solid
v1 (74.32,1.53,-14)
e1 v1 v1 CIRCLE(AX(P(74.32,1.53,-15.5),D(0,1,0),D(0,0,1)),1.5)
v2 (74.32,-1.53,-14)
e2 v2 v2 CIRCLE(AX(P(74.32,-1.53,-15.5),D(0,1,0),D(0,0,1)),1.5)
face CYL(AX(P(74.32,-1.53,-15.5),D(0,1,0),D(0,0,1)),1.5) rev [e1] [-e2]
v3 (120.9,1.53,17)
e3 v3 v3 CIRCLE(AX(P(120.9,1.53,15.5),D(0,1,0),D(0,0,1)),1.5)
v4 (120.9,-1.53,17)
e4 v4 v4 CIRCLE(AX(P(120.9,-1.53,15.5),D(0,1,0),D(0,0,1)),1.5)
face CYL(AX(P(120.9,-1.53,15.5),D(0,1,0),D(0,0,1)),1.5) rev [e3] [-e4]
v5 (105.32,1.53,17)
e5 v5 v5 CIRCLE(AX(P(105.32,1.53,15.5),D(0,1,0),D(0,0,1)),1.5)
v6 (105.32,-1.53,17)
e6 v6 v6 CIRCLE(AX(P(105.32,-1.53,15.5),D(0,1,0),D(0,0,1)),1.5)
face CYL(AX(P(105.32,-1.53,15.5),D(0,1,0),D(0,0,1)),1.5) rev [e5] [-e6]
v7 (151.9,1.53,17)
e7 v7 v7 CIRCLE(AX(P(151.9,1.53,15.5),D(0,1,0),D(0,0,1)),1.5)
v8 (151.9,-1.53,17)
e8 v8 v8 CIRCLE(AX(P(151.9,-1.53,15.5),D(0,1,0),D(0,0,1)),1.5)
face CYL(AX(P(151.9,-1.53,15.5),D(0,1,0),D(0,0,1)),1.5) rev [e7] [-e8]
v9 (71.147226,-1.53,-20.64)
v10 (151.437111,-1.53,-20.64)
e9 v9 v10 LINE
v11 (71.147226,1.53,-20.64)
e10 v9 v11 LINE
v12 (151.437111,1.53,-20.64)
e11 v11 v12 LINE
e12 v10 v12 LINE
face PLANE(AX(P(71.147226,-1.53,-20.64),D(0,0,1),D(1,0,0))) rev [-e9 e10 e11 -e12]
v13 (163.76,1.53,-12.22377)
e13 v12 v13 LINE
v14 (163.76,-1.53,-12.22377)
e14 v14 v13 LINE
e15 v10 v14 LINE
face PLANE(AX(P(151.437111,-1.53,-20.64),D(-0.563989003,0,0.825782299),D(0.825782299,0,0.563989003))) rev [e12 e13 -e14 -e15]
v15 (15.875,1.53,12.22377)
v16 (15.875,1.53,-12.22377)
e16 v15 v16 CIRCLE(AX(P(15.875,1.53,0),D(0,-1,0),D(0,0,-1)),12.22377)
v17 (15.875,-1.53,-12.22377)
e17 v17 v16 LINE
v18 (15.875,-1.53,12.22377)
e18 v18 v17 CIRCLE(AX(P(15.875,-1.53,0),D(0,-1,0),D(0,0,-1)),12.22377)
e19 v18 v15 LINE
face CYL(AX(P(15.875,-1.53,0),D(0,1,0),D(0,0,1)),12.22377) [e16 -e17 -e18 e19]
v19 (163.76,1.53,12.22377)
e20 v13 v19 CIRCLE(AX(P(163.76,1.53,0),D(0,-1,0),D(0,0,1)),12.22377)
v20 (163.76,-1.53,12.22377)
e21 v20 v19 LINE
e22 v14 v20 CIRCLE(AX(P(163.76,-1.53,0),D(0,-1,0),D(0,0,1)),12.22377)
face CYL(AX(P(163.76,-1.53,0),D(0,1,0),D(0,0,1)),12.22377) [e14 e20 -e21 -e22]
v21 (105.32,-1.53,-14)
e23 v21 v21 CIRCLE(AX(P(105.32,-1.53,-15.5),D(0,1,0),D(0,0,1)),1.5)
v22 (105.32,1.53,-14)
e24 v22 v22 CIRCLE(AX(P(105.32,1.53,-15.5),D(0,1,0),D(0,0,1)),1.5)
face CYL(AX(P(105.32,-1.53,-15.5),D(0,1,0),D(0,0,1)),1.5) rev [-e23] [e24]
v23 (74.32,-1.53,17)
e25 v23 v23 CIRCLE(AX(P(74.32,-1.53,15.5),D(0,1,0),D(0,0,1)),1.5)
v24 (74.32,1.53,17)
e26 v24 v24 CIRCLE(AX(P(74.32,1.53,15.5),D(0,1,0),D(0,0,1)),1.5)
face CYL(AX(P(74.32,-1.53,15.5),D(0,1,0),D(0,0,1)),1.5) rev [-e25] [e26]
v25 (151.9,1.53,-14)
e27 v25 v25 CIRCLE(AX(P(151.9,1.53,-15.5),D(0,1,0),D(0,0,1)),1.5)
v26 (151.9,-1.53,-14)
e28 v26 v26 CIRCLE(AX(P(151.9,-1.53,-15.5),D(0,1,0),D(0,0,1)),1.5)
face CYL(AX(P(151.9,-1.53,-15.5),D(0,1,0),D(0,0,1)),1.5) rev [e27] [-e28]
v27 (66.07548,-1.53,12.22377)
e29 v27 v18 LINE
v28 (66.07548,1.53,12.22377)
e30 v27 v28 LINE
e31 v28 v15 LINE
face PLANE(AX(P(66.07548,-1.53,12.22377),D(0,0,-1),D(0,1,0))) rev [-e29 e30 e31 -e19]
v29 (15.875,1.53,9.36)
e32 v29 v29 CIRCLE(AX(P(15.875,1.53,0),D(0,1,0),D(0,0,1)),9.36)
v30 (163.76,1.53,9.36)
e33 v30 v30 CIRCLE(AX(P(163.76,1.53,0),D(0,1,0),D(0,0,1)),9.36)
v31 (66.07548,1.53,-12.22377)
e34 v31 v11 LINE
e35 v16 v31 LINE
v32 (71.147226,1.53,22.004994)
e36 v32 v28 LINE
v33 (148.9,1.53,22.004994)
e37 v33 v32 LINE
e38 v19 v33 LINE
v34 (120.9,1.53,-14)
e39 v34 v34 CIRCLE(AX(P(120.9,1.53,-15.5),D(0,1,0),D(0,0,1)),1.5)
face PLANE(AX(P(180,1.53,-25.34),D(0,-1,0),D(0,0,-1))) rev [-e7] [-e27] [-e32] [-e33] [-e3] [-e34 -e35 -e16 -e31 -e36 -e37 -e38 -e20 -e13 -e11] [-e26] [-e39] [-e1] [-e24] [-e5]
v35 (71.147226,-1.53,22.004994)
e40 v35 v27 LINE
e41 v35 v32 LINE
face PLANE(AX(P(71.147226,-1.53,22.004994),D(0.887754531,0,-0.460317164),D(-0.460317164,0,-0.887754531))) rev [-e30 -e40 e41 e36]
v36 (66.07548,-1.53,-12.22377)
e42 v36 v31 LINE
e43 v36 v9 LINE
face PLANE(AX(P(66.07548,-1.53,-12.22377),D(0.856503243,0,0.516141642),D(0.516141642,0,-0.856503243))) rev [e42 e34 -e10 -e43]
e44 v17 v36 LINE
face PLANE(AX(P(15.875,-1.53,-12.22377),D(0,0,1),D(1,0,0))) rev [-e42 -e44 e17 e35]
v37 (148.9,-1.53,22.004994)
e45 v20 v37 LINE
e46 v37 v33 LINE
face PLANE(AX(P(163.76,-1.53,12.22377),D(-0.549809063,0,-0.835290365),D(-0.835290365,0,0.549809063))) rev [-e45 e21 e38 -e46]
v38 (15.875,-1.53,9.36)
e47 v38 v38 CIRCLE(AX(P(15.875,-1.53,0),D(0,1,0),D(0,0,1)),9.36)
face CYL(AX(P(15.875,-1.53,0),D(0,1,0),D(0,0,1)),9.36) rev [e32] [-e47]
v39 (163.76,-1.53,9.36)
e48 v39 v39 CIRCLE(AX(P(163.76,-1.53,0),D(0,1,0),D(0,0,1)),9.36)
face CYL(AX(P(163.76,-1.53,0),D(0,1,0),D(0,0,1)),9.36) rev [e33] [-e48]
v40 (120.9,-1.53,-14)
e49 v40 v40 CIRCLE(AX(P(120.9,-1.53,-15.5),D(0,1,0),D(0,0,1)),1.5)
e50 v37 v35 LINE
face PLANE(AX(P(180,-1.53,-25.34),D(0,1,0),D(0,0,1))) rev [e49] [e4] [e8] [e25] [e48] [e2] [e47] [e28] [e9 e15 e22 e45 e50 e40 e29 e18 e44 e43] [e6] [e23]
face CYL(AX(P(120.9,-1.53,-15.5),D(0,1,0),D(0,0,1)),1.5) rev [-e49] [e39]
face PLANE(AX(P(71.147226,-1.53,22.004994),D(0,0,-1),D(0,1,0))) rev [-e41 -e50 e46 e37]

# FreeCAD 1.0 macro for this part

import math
import FreeCAD as App
import Part
import Sketcher


def add_polygon(sketch, points):
    """Adds a closed chain of lines whose ends are joined by coincident constraints."""
    first, n = sketch.GeometryCount, len(points)
    for a, b in zip(points, points[1:] + points[:1]):
        sketch.addGeometry(Part.LineSegment(App.Vector(*a, 0), App.Vector(*b, 0)), False)
    for i in range(n):
        sketch.addConstraint(Sketcher.Constraint("Coincident", first + i, 2, first + (i + 1) % n, 1))

doc = App.newDocument("Part")
body = doc.addObject("PartDesign::Body", "Body")

# Sketch on YZ plane
sketch1 = body.newObject("Sketcher::SketchObject", "Sketch")
sketch1.AttachmentSupport = (doc.getObject("YZ_Plane"), [""])
sketch1.MapMode = "FlatFace"
add_polygon(sketch1, [(1.5, 25.3), (-1.5, 25.3), (-1.5, -25.3), (1.5, -25.3)])  # lines 0-3
sketch1.addConstraint(Sketcher.Constraint("Horizontal", 0))
sketch1.addConstraint(Sketcher.Constraint("Vertical", 1))
sketch1.addConstraint(Sketcher.Constraint("Horizontal", 2))
sketch1.addConstraint(Sketcher.Constraint("Vertical", 3))
sketch1.addConstraint(Sketcher.Constraint("Symmetric", 0, 2, 2, 2, -1, 1))
sketch1.addConstraint(Sketcher.Constraint("DistanceX", 0, 2, 0, 1, 3.06))
sketch1.addConstraint(Sketcher.Constraint("DistanceY", 1, 2, 1, 1, 50.68))
pad1 = body.newObject("PartDesign::Pad", "Pad")
pad1.Profile = sketch1
pad1.Length = 180

# Sketch on XZ plane
sketch2 = body.newObject("Sketcher::SketchObject", "Sketch001")
sketch2.AttachmentSupport = (doc.getObject("XZ_Plane"), [""])
sketch2.MapMode = "FlatFace"
sketch2.AttachmentOffset = App.Placement(App.Vector(0, 0, -1.53), App.Rotation())
sketch2.addGeometry(Part.Circle(App.Vector(15.9, 0, 0), App.Vector(0, 0, 1), 9.4), False)
sketch2.addGeometry(Part.Circle(App.Vector(74.3, -15.5, 0), App.Vector(0, 0, 1), 1.5), False)
sketch2.addGeometry(Part.Circle(App.Vector(74.3, 15.5, 0), App.Vector(0, 0, 1), 1.5), False)
sketch2.addGeometry(Part.Circle(App.Vector(105.3, -15.5, 0), App.Vector(0, 0, 1), 1.5), False)
sketch2.addGeometry(Part.Circle(App.Vector(105.3, 15.5, 0), App.Vector(0, 0, 1), 1.5), False)
sketch2.addGeometry(Part.Circle(App.Vector(120.9, -15.5, 0), App.Vector(0, 0, 1), 1.5), False)
sketch2.addGeometry(Part.Circle(App.Vector(120.9, 15.5, 0), App.Vector(0, 0, 1), 1.5), False)
sketch2.addGeometry(Part.Circle(App.Vector(151.9, -15.5, 0), App.Vector(0, 0, 1), 1.5), False)
sketch2.addGeometry(Part.Circle(App.Vector(151.9, 15.5, 0), App.Vector(0, 0, 1), 1.5), False)
sketch2.addGeometry(Part.Circle(App.Vector(163.8, 0, 0), App.Vector(0, 0, 1), 9.4), False)
sketch2.addGeometry(Part.LineSegment(App.Vector(163.8, 12.2, 0), App.Vector(148.9, 22, 0)), False)
sketch2.addGeometry(Part.LineSegment(App.Vector(148.9, 22, 0), App.Vector(148.9, 25.3, 0)), False)
sketch2.addGeometry(Part.LineSegment(App.Vector(148.9, 25.3, 0), App.Vector(180, 25.3, 0)), False)
sketch2.addGeometry(Part.LineSegment(App.Vector(180, 25.3, 0), App.Vector(180, -25.3, 0)), False)
sketch2.addGeometry(Part.LineSegment(App.Vector(180, -25.3, 0), App.Vector(0, -25.3, 0)), False)
sketch2.addGeometry(Part.LineSegment(App.Vector(0, -25.3, 0), App.Vector(0, 25.3, 0)), False)
sketch2.addGeometry(Part.LineSegment(App.Vector(0, 25.3, 0), App.Vector(71.1, 25.3, 0)), False)
sketch2.addGeometry(Part.LineSegment(App.Vector(71.1, 25.3, 0), App.Vector(71.1, 22, 0)), False)
sketch2.addGeometry(Part.LineSegment(App.Vector(71.1, 22, 0), App.Vector(66.1, 12.2, 0)), False)
sketch2.addGeometry(Part.LineSegment(App.Vector(66.1, 12.2, 0), App.Vector(15.9, 12.2, 0)), False)
sketch2.addGeometry(Part.ArcOfCircle(Part.Circle(App.Vector(15.9, 0, 0), App.Vector(0, 0, 1), 12.2), math.radians(90), math.radians(270)), False)
sketch2.addGeometry(Part.LineSegment(App.Vector(15.9, -12.2, 0), App.Vector(66.1, -12.2, 0)), False)
sketch2.addGeometry(Part.LineSegment(App.Vector(66.1, -12.2, 0), App.Vector(71.1, -20.6, 0)), False)
sketch2.addGeometry(Part.LineSegment(App.Vector(71.1, -20.6, 0), App.Vector(151.4, -20.6, 0)), False)
sketch2.addGeometry(Part.LineSegment(App.Vector(151.4, -20.6, 0), App.Vector(163.8, -12.2, 0)), False)
sketch2.addGeometry(Part.ArcOfCircle(Part.Circle(App.Vector(163.8, 0, 0), App.Vector(0, 0, 1), 12.2), math.radians(-90), math.radians(90)), False)
sketch2.addConstraint(Sketcher.Constraint("Coincident", 10, 2, 11, 1))
sketch2.addConstraint(Sketcher.Constraint("Coincident", 11, 2, 12, 1))
sketch2.addConstraint(Sketcher.Constraint("Coincident", 12, 2, 13, 1))
sketch2.addConstraint(Sketcher.Constraint("Coincident", 13, 2, 14, 1))
sketch2.addConstraint(Sketcher.Constraint("Coincident", 14, 2, 15, 1))
sketch2.addConstraint(Sketcher.Constraint("Coincident", 15, 2, 16, 1))
sketch2.addConstraint(Sketcher.Constraint("Coincident", 16, 2, 17, 1))
sketch2.addConstraint(Sketcher.Constraint("Coincident", 17, 2, 18, 1))
sketch2.addConstraint(Sketcher.Constraint("Coincident", 18, 2, 19, 1))
sketch2.addConstraint(Sketcher.Constraint("Tangent", 19, 2, 20, 1))
sketch2.addConstraint(Sketcher.Constraint("Tangent", 20, 2, 21, 1))
sketch2.addConstraint(Sketcher.Constraint("Coincident", 21, 2, 22, 1))
sketch2.addConstraint(Sketcher.Constraint("Coincident", 22, 2, 23, 1))
sketch2.addConstraint(Sketcher.Constraint("Coincident", 23, 2, 24, 1))
sketch2.addConstraint(Sketcher.Constraint("Coincident", 24, 2, 25, 1))
sketch2.addConstraint(Sketcher.Constraint("Coincident", 25, 2, 10, 1))
sketch2.addConstraint(Sketcher.Constraint("Vertical", 11))
sketch2.addConstraint(Sketcher.Constraint("Horizontal", 12))
sketch2.addConstraint(Sketcher.Constraint("Vertical", 13))
sketch2.addConstraint(Sketcher.Constraint("Horizontal", 14))
sketch2.addConstraint(Sketcher.Constraint("Vertical", 15))
sketch2.addConstraint(Sketcher.Constraint("Horizontal", 16))
sketch2.addConstraint(Sketcher.Constraint("Vertical", 17))
sketch2.addConstraint(Sketcher.Constraint("Horizontal", 19))
sketch2.addConstraint(Sketcher.Constraint("Horizontal", 21))
sketch2.addConstraint(Sketcher.Constraint("Horizontal", 23))
sketch2.addConstraint(Sketcher.Constraint("Coincident", 20, 3, 0, 3))
sketch2.addConstraint(Sketcher.Constraint("Coincident", 25, 3, 9, 3))
sketch2.addConstraint(Sketcher.Constraint("Equal", 1, 2))
sketch2.addConstraint(Sketcher.Constraint("Equal", 2, 3))
sketch2.addConstraint(Sketcher.Constraint("Equal", 3, 4))
sketch2.addConstraint(Sketcher.Constraint("Equal", 4, 5))
sketch2.addConstraint(Sketcher.Constraint("Equal", 5, 6))
sketch2.addConstraint(Sketcher.Constraint("Equal", 6, 7))
sketch2.addConstraint(Sketcher.Constraint("Equal", 7, 8))
sketch2.addConstraint(Sketcher.Constraint("Equal", 0, 9))
sketch2.addConstraint(Sketcher.Constraint("Equal", 20, 25))
sketch2.addConstraint(Sketcher.Constraint("Symmetric", 14, 2, 15, 2, -1, 1))
sketch2.addConstraint(Sketcher.Constraint("Symmetric", 1, 3, 2, 3, -1))
sketch2.addConstraint(Sketcher.Constraint("Symmetric", 3, 3, 4, 3, -1))
sketch2.addConstraint(Sketcher.Constraint("Symmetric", 5, 3, 6, 3, -1))
sketch2.addConstraint(Sketcher.Constraint("Symmetric", 7, 3, 8, 3, -1))
sketch2.addConstraint(Sketcher.Constraint("Symmetric", 18, 2, 21, 2, -1))
sketch2.addConstraint(Sketcher.Constraint("Symmetric", 24, 2, 25, 2, -1))
sketch2.addConstraint(Sketcher.Constraint("Horizontal", 1, 3, 3, 3))
sketch2.addConstraint(Sketcher.Constraint("Horizontal", 3, 3, 5, 3))
sketch2.addConstraint(Sketcher.Constraint("Horizontal", 5, 3, 7, 3))
sketch2.addConstraint(Sketcher.Constraint("Horizontal", 12, 2, 15, 2))
sketch2.addConstraint(Sketcher.Constraint("Horizontal", 10, 2, 17, 2))
sketch2.addConstraint(Sketcher.Constraint("Vertical", 17, 2, 22, 2))
sketch2.addConstraint(Sketcher.Constraint("Vertical", 25, 3, 24, 2))
sketch2.addConstraint(Sketcher.Constraint("Diameter", 1, 3.0))
sketch2.addConstraint(Sketcher.Constraint("Diameter", 0, 18.72))
sketch2.addConstraint(Sketcher.Constraint("DistanceX", 14, 2, 14, 1, 180.0))
sketch2.addConstraint(Sketcher.Constraint("DistanceX", 12, 1, 12, 2, 31.1))
sketch2.addConstraint(Sketcher.Constraint("DistanceY", 1, 3, 2, 3, 31.0))
sketch2.addConstraint(Sketcher.Constraint("DistanceX", 1, 3, 3, 3, 31.0))
sketch2.addConstraint(Sketcher.Constraint("DistanceX", 5, 3, 7, 3, 31.0))
sketch2.addConstraint(Sketcher.Constraint("DistanceX", 10, 2, 8, 3, 3.0))
sketch2.addConstraint(Sketcher.Constraint("DistanceY", 13, 2, 13, 1, 50.68))
sketch2.addConstraint(Sketcher.Constraint("DistanceY", 13, 2, 23, 2, 4.7))
sketch2.addConstraint(Sketcher.Constraint("DistanceX", -1, 1, 1, 3, 74.32))
sketch2.addConstraint(Sketcher.Constraint("DistanceX", -1, 1, 9, 3, 163.76))
sketch2.addConstraint(Sketcher.Constraint("Radius", 20, 12.22377))
sketch2.addConstraint(Sketcher.Constraint("DistanceX", -1, 1, 0, 3, 15.875))
sketch2.addConstraint(Sketcher.Constraint("DistanceX", 19, 2, 19, 1, 50.20048))
sketch2.addConstraint(Sketcher.Constraint("Distance", 10, 17.790221))
sketch2.addConstraint(Sketcher.Constraint("Distance", 18, 11.017938))
sketch2.addConstraint(Sketcher.Constraint("DistanceX", 23, 1, 23, 2, 80.289884))
pocket1 = body.newObject("PartDesign::Pocket", "Pocket")
pocket1.Profile = sketch2
pocket1.Type = "ThroughAll"
pocket1.Reversed = True

# Sketch on XZ plane
sketch3 = body.newObject("Sketcher::SketchObject", "Sketch002")
sketch3.AttachmentSupport = (doc.getObject("XZ_Plane"), [""])
sketch3.MapMode = "FlatFace"
sketch3.AttachmentOffset = App.Placement(App.Vector(0, 0, -1.53), App.Rotation())
add_polygon(sketch3, [(148.9, 25.3), (148.9, 22), (71.1, 22), (71.1, 25.3)])  # lines 0-3
sketch3.addConstraint(Sketcher.Constraint("Vertical", 0))
sketch3.addConstraint(Sketcher.Constraint("Horizontal", 1))
sketch3.addConstraint(Sketcher.Constraint("Vertical", 2))
sketch3.addConstraint(Sketcher.Constraint("Horizontal", 3))
sketch3.addConstraint(Sketcher.Constraint("DistanceX", -1, 1, 0, 2, 148.9))
sketch3.addConstraint(Sketcher.Constraint("DistanceY", -1, 1, 2, 2, 25.34))
sketch3.addConstraint(Sketcher.Constraint("DistanceX", 1, 2, 1, 1, 77.752774))
sketch3.addConstraint(Sketcher.Constraint("DistanceY", 0, 2, 0, 1, 3.335006))
pocket2 = body.newObject("PartDesign::Pocket", "Pocket001")
pocket2.Profile = sketch3
pocket2.Type = "ThroughAll"
pocket2.Reversed = True

doc.recompute()
